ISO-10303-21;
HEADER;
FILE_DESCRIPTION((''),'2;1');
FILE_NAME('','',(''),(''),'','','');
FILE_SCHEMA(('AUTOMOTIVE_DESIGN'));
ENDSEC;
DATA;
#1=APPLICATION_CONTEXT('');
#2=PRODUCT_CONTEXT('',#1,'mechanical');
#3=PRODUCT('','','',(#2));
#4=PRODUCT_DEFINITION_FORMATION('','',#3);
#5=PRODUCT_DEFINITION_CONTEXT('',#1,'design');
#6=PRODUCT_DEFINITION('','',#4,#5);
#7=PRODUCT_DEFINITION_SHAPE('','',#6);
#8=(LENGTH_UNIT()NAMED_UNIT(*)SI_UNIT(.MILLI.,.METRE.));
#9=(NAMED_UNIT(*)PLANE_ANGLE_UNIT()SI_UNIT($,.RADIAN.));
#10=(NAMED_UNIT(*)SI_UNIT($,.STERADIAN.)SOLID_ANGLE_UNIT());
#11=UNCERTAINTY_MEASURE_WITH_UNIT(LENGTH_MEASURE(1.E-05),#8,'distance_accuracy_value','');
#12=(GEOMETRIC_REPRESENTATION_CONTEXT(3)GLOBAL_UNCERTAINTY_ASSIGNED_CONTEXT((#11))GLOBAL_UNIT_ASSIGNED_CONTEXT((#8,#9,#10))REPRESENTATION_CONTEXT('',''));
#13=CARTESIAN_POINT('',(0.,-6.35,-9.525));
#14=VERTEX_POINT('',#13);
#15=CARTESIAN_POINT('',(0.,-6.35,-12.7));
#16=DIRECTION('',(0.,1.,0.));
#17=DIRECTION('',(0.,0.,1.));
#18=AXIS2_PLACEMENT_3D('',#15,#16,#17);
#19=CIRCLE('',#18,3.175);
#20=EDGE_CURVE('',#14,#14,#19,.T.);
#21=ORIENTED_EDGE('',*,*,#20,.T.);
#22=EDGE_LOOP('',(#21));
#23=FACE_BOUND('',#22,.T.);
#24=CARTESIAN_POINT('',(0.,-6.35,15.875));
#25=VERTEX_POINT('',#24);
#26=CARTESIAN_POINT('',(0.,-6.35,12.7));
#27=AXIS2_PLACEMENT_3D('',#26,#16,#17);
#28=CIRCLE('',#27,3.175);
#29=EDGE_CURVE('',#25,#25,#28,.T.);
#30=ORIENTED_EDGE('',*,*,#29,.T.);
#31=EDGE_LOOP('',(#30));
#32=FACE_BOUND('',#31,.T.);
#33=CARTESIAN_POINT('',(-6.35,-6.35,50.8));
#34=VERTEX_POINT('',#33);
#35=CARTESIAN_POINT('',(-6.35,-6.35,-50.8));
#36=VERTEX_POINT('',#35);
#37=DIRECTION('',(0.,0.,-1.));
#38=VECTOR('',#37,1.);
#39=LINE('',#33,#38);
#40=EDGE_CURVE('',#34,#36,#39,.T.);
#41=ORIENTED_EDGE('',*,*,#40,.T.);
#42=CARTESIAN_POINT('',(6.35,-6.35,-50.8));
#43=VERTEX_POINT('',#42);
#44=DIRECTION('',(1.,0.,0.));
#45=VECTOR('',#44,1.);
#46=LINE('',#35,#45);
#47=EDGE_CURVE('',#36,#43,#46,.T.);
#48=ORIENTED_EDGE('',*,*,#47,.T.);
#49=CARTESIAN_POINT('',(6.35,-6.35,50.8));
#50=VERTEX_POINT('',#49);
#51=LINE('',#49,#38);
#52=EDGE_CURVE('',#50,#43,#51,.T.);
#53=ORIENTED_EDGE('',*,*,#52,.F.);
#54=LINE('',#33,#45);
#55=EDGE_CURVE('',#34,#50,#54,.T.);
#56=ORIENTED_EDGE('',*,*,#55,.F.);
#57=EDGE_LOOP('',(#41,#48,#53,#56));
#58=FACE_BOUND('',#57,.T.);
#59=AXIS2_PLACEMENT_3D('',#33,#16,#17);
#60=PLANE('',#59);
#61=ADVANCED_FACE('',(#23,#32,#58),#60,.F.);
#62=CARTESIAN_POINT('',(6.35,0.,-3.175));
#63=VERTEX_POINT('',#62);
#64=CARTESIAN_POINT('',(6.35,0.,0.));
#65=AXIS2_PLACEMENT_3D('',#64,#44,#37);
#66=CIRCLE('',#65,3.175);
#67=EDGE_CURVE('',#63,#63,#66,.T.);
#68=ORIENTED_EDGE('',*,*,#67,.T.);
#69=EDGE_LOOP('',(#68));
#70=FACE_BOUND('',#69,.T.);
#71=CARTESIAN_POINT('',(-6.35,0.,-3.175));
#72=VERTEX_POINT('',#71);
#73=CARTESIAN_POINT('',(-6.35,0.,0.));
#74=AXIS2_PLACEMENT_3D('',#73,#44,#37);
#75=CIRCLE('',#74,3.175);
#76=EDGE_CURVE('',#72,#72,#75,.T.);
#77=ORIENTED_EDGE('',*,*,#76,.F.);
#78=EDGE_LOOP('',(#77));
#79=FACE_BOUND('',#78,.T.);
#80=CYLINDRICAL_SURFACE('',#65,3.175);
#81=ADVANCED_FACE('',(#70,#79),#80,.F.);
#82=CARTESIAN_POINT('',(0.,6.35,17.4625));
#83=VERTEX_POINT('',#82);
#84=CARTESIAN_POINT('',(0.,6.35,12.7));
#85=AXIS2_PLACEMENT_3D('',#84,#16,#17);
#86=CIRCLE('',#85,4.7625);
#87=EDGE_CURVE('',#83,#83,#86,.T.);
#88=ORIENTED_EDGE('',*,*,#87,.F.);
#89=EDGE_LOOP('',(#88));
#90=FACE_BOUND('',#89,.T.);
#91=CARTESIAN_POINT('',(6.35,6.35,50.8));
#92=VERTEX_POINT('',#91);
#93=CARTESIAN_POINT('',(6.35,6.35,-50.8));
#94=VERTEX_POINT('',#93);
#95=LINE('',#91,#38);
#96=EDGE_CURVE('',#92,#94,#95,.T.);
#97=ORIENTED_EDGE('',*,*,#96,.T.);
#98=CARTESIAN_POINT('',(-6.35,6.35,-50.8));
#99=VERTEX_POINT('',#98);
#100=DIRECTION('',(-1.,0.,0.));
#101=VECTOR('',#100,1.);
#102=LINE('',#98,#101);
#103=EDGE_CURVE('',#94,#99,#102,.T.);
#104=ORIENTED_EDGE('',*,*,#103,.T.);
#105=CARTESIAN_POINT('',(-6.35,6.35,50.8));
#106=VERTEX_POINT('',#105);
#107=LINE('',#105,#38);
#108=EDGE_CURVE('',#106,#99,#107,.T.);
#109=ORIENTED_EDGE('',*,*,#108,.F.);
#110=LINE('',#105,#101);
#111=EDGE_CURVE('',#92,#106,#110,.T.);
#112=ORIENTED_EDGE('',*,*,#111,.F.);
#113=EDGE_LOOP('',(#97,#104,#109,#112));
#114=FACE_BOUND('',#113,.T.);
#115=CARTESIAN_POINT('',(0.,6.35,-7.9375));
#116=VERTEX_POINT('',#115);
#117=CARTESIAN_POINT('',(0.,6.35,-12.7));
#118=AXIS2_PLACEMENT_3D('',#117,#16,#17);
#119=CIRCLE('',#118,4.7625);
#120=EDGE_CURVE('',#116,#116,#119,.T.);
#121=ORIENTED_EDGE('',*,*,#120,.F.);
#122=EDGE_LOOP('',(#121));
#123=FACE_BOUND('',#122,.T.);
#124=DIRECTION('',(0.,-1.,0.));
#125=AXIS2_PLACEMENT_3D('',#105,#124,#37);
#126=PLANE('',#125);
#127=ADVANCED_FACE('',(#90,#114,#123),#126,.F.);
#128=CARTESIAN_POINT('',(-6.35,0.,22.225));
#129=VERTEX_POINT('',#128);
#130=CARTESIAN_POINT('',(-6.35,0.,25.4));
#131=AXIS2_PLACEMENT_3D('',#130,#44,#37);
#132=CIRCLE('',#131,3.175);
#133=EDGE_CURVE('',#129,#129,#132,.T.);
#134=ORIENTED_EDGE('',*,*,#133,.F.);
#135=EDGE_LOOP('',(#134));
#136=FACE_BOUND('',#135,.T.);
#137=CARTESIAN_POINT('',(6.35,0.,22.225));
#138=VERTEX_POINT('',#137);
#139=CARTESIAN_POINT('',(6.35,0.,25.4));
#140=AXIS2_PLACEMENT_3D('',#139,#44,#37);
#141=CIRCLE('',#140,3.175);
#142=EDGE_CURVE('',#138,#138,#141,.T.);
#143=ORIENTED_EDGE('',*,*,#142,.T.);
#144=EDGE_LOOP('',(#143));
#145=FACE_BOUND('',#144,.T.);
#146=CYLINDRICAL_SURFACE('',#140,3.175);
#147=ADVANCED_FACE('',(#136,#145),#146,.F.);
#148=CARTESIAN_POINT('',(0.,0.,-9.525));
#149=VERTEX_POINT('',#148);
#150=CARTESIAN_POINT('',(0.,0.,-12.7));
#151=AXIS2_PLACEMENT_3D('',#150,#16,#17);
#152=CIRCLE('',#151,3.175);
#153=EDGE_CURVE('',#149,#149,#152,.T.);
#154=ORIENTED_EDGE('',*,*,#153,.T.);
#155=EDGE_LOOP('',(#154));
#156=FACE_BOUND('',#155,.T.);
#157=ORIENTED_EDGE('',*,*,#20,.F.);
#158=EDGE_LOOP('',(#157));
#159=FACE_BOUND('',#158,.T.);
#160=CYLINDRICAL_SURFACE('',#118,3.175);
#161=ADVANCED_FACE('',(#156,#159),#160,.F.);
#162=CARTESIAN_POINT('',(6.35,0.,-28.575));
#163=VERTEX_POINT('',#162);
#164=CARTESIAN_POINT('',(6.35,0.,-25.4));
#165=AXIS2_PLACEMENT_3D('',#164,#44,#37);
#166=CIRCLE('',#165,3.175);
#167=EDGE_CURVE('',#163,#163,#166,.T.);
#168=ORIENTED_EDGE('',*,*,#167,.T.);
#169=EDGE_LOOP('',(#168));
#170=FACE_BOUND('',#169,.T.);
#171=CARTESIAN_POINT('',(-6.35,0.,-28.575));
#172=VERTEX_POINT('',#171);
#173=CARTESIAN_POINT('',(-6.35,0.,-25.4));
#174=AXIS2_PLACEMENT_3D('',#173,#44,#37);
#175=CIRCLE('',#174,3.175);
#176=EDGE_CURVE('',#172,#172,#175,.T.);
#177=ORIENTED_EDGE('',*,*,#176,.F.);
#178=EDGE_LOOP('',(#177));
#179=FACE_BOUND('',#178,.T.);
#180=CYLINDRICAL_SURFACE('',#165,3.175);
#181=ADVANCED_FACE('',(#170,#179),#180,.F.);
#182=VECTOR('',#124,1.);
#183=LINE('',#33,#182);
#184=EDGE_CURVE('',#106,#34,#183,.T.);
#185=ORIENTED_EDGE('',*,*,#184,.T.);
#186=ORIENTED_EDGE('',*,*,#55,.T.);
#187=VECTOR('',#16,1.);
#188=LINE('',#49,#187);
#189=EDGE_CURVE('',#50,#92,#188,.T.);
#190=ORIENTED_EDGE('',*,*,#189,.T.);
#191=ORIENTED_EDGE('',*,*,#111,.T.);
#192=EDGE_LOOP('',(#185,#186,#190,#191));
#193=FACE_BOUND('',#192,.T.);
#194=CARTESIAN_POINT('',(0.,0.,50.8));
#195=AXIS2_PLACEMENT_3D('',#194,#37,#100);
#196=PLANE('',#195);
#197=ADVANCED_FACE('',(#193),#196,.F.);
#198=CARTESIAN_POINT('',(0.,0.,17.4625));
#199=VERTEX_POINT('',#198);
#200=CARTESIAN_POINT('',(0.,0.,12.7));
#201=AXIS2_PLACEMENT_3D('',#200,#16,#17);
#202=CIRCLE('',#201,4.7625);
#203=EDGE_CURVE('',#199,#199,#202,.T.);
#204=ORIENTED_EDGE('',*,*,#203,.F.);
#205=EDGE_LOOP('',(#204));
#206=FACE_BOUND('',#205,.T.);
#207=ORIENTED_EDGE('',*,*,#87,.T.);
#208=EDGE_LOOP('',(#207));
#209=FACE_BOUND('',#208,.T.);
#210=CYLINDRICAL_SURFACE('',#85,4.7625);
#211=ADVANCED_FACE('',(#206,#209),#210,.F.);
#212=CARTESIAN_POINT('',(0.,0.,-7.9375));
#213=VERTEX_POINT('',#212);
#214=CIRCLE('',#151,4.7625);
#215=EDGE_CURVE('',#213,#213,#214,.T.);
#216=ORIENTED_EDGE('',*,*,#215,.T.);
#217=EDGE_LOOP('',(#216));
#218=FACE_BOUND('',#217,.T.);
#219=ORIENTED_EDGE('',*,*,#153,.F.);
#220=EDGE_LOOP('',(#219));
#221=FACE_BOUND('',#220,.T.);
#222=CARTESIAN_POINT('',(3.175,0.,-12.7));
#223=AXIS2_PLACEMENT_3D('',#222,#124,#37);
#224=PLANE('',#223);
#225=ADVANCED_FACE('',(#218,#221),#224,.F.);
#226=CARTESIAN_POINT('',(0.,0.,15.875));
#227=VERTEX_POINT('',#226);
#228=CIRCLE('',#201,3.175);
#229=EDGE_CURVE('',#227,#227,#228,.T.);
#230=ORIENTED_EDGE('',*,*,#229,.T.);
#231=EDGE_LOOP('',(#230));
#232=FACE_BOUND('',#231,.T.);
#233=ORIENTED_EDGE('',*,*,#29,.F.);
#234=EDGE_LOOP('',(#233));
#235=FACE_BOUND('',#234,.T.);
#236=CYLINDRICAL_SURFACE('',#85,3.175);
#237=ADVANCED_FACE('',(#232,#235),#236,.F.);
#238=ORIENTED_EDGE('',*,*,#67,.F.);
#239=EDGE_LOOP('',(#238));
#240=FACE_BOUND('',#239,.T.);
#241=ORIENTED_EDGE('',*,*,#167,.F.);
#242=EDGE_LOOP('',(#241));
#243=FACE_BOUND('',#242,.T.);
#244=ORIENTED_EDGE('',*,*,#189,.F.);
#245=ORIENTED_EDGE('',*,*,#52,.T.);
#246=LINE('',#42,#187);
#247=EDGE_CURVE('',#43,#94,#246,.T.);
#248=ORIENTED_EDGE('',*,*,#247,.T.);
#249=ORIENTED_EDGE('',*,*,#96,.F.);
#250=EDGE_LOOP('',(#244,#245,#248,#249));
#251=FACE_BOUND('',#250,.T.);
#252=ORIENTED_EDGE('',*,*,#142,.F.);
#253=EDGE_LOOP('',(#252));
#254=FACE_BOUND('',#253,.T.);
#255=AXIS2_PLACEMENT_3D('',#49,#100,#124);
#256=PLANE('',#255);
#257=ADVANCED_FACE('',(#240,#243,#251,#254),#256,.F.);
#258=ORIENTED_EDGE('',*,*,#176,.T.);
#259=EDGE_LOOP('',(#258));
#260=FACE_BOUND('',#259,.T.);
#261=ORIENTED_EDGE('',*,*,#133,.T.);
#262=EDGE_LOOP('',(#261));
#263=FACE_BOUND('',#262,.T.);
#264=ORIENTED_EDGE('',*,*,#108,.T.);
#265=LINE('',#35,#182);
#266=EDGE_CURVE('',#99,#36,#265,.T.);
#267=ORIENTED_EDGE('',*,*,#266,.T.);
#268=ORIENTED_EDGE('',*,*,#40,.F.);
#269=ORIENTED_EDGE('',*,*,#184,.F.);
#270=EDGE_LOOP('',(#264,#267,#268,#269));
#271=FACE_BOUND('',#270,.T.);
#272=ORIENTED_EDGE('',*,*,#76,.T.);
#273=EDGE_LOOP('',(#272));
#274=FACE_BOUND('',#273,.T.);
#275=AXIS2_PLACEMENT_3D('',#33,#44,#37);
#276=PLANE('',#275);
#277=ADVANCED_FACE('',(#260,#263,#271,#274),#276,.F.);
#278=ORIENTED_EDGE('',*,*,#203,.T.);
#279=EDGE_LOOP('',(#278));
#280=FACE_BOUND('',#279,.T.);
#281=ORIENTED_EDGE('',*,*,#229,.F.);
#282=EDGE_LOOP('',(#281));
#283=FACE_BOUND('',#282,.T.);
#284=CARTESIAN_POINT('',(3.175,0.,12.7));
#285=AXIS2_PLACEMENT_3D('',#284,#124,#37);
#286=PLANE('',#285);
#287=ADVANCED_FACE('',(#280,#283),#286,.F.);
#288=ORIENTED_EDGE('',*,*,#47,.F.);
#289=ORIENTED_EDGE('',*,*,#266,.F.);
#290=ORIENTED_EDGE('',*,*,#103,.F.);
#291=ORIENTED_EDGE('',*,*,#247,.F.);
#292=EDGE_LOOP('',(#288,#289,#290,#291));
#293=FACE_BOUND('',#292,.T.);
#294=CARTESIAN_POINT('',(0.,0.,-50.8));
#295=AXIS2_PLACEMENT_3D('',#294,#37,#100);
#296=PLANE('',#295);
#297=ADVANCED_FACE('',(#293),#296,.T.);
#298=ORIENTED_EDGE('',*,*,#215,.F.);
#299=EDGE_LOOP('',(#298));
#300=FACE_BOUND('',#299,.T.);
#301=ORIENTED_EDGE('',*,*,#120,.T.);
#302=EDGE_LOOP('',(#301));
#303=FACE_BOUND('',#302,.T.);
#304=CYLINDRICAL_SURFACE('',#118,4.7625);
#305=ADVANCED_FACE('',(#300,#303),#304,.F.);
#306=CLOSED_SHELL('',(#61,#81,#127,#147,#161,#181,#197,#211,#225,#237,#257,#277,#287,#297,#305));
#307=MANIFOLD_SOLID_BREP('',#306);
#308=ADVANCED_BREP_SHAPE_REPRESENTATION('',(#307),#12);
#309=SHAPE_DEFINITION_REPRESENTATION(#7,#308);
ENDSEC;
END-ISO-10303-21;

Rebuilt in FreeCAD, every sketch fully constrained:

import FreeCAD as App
import Part
import Sketcher
from FreeCAD import Vector
Q = App.Units.Quantity


def add_polygon(sketch, points):
    """Adds a closed chain of lines whose ends are joined by coincident constraints."""
    first, n = sketch.GeometryCount, len(points)
    for a, b in zip(points, points[1:] + points[:1]):
        sketch.addGeometry(Part.LineSegment(App.Vector(*a, 0), App.Vector(*b, 0)), False)
    for i in range(n):
        sketch.addConstraint(Sketcher.Constraint("Coincident", first + i, 2, first + (i + 1) % n, 1))

doc = App.newDocument("Part")
params = doc.addObject("Spreadsheet::Sheet", "Params")
for row, (alias, value) in enumerate([
    ("sketch1_width", "0.5 in"),
    ("pad1_length", "4 in"),
    ("sketch2_diameter", "0.25 in"),
    ("hole_diameter", "0.25 in"),
    ("hole_cbore_diameter", "0.375 in"),
    ("hole_cbore_depth", "0.25 in"),
    ("sketch3_diameter", "0.25 in"),
    ("hole2_diameter", "0.25 in"),
], start=1):
    params.set(f"A{row}", alias)
    params.set(f"B{row}", "=" + value)
    params.setAlias(f"B{row}", alias)

body = doc.addObject("PartDesign::Body", "Body")

sketch1 = body.newObject("Sketcher::SketchObject", "Sketch")
sketch1.AttachmentSupport = (doc.getObject("XY_Plane"), [""])
sketch1.MapMode = "FlatFace"
add_polygon(sketch1, [(-6.35, 6.35), (-6.35, -6.35), (6.35, -6.35), (6.35, 6.35)])
sketch1.addConstraint(Sketcher.Constraint("Vertical", 0))
sketch1.addConstraint(Sketcher.Constraint("Horizontal", 1))
sketch1.addConstraint(Sketcher.Constraint("Vertical", 2))
sketch1.addConstraint(Sketcher.Constraint("Horizontal", 3))
sketch1.addConstraint(Sketcher.Constraint("Symmetric", 0, 2, 2, 2, -1, 1))
sketch1.addConstraint(Sketcher.Constraint("Equal", 3, 0))
sketch1.addConstraint(Sketcher.Constraint("DistanceX", 1, 1, 1, 2, Q("0.5 in")))
sketch1.setExpression("Constraints[10]", "Params.sketch1_width")
pad1 = body.newObject("PartDesign::Pad", "Pad")
pad1.Profile = sketch1
pad1.setExpression("Length", "Params.pad1_length")
pad1.Midplane = True

sketch2 = body.newObject("Sketcher::SketchObject", "Sketch001")
sketch2.AttachmentSupport = (doc.getObject("XZ_Plane"), [""])
sketch2.MapMode = "FlatFace"
sketch2.AttachmentOffset = App.Placement(Vector(0, 0, -0.25 * 25.4), App.Rotation())
sketch2.addGeometry(Part.Circle(Vector(0, -12.7, 0), Vector(0, 0, 1), 3.175), False)
sketch2.addGeometry(Part.Circle(Vector(0, 12.7, 0), Vector(0, 0, 1), 3.175), False)
sketch2.addConstraint(Sketcher.Constraint("Equal", 0, 1))
sketch2.addConstraint(Sketcher.Constraint("Symmetric", 0, 3, 1, 3, -1, 1))
sketch2.addConstraint(Sketcher.Constraint("PointOnObject", 0, 3, -2))
sketch2.addConstraint(Sketcher.Constraint("Diameter", 0, Q("0.25 in")))
sketch2.addConstraint(Sketcher.Constraint("DistanceY", 0, 3, 1, 3, Q("1 in")))
sketch2.setExpression("Constraints[3]", "Params.sketch2_diameter")
doc.recompute()
hole = body.newObject("PartDesign::Hole", "Hole")
hole.Profile = sketch2
hole.ThreadType = "None"
hole.setExpression("Diameter", "Params.hole_diameter")
hole.DepthType = "ThroughAll"
hole.HoleCutType = "Counterbore"
hole.setExpression("HoleCutDiameter", "Params.hole_cbore_diameter")
hole.setExpression("HoleCutDepth", "Params.hole_cbore_depth")
hole.Reversed = True

sketch3 = body.newObject("Sketcher::SketchObject", "Sketch002")
sketch3.AttachmentSupport = (doc.getObject("YZ_Plane"), [""])
sketch3.MapMode = "FlatFace"
sketch3.AttachmentOffset = App.Placement(Vector(0, 0, 0.25 * 25.4), App.Rotation())
sketch3.addGeometry(Part.Circle(Vector(0, 25.4, 0), Vector(0, 0, 1), 3.175), False)
sketch3.addGeometry(Part.Circle(Vector(0, 0, 0), Vector(0, 0, 1), 3.175), False)
sketch3.addGeometry(Part.Circle(Vector(0, -25.4, 0), Vector(0, 0, 1), 3.175), False)
sketch3.addConstraint(Sketcher.Constraint("Coincident", 1, 3, -1, 1))
sketch3.addConstraint(Sketcher.Constraint("Equal", 0, 1))
sketch3.addConstraint(Sketcher.Constraint("Equal", 1, 2))
sketch3.addConstraint(Sketcher.Constraint("Symmetric", 0, 3, 2, 3, -1, 1))
sketch3.addConstraint(Sketcher.Constraint("PointOnObject", 0, 3, -2))
sketch3.addConstraint(Sketcher.Constraint("Diameter", 0, Q("0.25 in")))
sketch3.addConstraint(Sketcher.Constraint("DistanceY", -1, 1, 0, 3, Q("1 in")))
sketch3.setExpression("Constraints[5]", "Params.sketch3_diameter")
doc.recompute()
hole2 = body.newObject("PartDesign::Hole", "Hole001")
hole2.Profile = sketch3
hole2.ThreadType = "None"
hole2.setExpression("Diameter", "Params.hole2_diameter")
hole2.DepthType = "ThroughAll"

doc.recompute()
